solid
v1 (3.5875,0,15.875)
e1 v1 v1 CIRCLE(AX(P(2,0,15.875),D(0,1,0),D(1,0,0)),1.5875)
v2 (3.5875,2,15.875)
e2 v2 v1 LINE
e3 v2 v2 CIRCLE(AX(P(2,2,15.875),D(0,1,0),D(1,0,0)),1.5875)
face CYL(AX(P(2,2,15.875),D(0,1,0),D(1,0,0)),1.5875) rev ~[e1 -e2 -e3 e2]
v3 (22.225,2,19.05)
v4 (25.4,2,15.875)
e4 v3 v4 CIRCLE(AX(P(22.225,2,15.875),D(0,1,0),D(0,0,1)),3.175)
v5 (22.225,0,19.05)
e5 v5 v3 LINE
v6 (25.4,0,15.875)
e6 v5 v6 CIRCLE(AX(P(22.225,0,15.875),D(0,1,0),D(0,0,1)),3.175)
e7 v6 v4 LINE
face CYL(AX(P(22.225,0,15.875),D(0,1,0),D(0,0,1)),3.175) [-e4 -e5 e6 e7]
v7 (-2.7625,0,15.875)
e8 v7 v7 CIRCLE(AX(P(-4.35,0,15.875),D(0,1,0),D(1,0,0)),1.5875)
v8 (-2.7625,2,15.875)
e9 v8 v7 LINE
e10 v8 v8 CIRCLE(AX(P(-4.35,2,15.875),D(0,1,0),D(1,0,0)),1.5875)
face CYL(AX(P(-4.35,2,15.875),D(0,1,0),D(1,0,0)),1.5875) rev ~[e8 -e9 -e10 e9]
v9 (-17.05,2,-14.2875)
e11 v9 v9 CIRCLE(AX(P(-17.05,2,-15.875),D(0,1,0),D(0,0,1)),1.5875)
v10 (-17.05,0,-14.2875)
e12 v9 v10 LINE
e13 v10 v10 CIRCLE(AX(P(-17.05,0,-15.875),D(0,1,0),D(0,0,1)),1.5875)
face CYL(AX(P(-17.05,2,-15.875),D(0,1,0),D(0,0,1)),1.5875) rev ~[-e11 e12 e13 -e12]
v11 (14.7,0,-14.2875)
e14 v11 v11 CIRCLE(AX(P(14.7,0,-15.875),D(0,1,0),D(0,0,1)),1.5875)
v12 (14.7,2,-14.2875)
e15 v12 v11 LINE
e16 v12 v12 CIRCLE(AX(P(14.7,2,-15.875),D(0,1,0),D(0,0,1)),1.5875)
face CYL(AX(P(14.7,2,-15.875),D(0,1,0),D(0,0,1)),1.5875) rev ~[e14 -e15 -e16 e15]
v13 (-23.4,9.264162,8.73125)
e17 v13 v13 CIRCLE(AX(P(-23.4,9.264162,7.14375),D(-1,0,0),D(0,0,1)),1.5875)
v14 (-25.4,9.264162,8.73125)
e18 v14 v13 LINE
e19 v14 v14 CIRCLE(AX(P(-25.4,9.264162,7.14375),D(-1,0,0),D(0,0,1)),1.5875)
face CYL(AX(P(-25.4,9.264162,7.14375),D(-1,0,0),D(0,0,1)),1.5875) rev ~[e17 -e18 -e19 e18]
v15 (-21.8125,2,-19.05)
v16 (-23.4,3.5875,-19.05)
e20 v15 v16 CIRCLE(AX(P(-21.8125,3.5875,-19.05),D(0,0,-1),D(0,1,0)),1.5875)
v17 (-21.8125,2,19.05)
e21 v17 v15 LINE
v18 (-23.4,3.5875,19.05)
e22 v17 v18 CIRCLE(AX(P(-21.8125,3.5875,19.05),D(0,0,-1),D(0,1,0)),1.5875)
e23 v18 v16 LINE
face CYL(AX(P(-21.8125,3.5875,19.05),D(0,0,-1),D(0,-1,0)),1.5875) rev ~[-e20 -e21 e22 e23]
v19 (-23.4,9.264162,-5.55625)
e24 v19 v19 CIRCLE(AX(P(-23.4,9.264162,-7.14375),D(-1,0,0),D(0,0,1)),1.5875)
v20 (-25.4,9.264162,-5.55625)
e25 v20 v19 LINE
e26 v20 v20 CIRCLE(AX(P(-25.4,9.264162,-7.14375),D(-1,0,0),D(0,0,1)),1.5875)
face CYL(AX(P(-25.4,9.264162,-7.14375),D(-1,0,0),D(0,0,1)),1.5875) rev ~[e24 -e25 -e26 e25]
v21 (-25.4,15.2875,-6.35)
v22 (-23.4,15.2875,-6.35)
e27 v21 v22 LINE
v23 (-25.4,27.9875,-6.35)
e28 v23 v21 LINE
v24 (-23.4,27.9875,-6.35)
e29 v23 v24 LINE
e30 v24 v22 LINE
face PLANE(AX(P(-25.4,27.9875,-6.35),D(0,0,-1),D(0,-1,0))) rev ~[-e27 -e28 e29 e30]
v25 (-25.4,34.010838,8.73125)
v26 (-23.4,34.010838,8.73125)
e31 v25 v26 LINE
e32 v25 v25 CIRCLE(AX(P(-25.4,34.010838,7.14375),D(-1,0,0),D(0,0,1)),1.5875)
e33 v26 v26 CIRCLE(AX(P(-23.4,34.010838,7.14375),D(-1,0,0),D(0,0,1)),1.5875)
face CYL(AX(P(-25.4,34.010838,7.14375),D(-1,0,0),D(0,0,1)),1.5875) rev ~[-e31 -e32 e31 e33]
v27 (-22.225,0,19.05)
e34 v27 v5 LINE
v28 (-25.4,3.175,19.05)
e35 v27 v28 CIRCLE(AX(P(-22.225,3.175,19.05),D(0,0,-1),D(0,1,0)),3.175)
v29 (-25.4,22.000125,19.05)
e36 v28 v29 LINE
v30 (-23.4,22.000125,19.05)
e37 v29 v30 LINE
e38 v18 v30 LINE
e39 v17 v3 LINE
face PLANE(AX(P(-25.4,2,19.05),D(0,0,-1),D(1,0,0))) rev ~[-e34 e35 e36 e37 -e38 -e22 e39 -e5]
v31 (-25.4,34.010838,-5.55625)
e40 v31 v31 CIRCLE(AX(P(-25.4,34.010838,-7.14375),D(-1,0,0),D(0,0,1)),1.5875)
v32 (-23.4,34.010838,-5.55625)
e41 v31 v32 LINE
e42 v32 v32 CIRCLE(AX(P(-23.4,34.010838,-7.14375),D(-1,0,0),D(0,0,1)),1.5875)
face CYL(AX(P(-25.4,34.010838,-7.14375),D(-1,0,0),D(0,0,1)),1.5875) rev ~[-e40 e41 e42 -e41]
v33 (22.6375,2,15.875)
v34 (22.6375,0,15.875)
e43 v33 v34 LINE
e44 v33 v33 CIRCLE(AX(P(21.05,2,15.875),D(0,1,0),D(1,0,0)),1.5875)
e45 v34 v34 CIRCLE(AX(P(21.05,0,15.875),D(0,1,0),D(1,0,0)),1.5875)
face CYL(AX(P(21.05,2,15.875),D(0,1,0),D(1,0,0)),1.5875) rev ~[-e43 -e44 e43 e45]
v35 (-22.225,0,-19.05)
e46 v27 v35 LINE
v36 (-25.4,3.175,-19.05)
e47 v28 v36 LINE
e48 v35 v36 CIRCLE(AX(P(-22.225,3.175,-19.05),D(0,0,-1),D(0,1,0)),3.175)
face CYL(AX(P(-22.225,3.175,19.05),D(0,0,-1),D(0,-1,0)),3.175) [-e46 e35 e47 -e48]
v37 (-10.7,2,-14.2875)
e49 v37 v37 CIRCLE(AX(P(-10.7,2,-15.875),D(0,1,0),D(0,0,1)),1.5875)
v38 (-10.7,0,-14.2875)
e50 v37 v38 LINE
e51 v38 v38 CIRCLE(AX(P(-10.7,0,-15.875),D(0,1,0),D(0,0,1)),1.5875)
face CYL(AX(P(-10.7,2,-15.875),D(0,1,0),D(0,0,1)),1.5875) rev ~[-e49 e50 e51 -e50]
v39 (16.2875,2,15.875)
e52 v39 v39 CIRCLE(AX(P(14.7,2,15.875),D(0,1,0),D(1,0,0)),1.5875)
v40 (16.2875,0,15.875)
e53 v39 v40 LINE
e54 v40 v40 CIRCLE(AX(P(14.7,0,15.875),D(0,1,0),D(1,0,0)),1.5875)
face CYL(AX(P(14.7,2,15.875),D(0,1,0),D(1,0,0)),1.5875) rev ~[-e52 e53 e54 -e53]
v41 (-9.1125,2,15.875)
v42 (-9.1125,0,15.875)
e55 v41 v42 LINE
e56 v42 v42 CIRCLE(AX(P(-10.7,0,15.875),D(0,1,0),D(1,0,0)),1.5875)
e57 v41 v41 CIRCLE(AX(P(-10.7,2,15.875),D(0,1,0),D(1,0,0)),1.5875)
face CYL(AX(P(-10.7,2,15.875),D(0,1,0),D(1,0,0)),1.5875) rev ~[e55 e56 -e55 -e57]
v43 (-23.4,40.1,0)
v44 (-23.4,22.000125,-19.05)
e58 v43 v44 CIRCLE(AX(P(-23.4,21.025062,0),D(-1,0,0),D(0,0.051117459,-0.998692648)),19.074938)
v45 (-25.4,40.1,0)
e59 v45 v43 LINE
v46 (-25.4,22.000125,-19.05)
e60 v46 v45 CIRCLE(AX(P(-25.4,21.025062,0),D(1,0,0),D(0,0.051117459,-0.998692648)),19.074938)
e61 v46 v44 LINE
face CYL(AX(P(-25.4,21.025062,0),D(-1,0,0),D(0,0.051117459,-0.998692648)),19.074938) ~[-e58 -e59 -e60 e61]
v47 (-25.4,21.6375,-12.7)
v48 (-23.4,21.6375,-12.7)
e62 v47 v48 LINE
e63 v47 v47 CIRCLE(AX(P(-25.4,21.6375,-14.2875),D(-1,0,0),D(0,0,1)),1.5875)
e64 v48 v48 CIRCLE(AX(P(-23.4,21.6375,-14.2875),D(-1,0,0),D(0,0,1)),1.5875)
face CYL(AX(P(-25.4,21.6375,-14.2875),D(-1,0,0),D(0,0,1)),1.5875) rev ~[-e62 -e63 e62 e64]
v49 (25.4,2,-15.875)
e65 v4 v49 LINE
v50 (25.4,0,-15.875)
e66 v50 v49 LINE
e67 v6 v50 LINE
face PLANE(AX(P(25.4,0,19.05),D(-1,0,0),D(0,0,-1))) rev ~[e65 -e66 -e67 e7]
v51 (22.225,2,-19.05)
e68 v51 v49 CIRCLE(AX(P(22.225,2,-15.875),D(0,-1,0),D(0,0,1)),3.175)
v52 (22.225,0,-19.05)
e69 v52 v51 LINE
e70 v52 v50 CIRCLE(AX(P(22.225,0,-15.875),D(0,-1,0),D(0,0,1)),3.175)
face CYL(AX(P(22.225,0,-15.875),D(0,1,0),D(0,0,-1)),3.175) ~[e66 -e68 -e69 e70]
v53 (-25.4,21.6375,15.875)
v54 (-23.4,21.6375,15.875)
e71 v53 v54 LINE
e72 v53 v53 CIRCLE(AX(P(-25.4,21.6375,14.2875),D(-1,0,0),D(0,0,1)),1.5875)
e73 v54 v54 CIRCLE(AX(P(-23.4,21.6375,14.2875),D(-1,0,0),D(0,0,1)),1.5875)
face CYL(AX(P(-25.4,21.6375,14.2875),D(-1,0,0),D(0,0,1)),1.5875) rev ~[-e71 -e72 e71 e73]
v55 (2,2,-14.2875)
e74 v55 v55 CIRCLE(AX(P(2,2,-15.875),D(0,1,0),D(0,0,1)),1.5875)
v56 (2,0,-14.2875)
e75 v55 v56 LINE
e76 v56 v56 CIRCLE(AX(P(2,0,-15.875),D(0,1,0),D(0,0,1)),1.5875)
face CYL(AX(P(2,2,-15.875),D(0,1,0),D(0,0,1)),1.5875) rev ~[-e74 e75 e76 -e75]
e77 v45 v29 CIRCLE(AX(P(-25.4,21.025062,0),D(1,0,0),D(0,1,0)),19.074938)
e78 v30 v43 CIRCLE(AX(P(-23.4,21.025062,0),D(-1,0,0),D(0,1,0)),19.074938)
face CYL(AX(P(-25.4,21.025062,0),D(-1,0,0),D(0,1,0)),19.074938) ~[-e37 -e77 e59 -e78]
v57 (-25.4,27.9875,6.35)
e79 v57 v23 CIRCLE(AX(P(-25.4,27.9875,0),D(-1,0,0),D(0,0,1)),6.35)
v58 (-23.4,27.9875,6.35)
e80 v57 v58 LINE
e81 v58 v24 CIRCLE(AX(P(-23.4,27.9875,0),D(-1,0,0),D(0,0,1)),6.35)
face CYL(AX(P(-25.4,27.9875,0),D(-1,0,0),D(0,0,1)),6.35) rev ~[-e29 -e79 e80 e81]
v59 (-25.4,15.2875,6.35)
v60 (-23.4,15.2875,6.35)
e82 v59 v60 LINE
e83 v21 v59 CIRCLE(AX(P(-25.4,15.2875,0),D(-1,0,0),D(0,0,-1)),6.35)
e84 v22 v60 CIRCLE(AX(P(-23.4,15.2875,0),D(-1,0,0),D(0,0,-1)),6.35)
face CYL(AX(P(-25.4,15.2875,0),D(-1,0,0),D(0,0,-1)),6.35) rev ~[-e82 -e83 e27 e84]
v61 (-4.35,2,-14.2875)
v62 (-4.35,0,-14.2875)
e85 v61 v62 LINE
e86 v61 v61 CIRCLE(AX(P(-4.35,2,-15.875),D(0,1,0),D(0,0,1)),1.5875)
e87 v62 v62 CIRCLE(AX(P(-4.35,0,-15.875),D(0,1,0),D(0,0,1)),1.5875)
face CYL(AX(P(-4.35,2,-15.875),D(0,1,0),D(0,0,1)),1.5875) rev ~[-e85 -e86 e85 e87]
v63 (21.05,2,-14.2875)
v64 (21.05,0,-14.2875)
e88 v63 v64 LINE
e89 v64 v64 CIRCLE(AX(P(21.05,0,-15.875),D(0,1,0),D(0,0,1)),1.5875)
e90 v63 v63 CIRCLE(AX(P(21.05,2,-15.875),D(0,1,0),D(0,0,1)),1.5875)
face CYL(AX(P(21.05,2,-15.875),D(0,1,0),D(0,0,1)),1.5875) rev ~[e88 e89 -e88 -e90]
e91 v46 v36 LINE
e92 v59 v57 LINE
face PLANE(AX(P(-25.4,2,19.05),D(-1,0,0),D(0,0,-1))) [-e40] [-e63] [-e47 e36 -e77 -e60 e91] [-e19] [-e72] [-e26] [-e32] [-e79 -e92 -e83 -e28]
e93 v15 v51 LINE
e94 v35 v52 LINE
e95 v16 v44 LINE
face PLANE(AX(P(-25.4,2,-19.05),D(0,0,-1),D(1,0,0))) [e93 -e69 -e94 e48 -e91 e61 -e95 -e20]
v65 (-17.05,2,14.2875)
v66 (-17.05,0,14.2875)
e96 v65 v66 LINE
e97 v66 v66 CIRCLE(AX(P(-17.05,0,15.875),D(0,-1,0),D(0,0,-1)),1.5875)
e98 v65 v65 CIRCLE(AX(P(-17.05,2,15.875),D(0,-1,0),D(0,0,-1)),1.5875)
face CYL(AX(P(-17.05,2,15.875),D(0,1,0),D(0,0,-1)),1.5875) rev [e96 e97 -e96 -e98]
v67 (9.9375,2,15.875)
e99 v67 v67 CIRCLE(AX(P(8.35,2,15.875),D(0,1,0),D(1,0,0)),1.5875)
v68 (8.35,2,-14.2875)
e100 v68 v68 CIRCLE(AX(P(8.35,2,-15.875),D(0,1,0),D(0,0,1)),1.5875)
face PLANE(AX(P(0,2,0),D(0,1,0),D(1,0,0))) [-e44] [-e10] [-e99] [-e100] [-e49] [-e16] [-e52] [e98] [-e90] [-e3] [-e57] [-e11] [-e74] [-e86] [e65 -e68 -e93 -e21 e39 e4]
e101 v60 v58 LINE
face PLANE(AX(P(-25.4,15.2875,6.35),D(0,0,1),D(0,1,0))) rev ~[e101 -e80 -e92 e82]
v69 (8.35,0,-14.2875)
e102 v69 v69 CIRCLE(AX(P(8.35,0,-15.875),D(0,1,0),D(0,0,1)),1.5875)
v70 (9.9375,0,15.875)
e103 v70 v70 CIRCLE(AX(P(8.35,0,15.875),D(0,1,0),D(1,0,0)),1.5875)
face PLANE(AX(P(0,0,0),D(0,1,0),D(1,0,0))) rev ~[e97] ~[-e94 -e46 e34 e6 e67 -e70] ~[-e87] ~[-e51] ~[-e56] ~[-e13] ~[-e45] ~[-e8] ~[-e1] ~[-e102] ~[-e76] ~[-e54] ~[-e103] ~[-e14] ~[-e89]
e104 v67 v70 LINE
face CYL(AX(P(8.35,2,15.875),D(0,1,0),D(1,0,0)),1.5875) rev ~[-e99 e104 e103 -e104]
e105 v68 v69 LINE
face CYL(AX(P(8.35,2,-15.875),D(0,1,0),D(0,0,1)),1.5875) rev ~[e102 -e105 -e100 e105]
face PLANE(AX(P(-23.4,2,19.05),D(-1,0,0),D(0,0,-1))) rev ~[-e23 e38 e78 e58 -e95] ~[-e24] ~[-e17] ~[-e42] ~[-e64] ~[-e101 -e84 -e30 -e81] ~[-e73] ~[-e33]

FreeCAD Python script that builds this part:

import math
import FreeCAD as App
import Part
import Sketcher
from FreeCAD import Vector
Q = App.Units.Quantity


def edges_at(feature, points):
    """Names of the edges that pass closest to the given points."""
    edges = feature.Shape.Edges
    near = lambda p: min(range(len(edges)), key=lambda i: edges[i].distToShape(Part.Vertex(*p))[0])
    return sorted({f"Edge{near(p) + 1}" for p in points})


def add_polygon(sketch, points):
    """Adds a closed chain of lines whose ends are joined by coincident constraints."""
    first, n = sketch.GeometryCount, len(points)
    for a, b in zip(points, points[1:] + points[:1]):
        sketch.addGeometry(Part.LineSegment(App.Vector(*a, 0), App.Vector(*b, 0)), False)
    for i in range(n):
        sketch.addConstraint(Sketcher.Constraint("Coincident", first + i, 2, first + (i + 1) % n, 1))

doc = App.newDocument("Part")
body = doc.addObject("PartDesign::Body", "Body")

# Sketch on XZ plane
sketch1 = body.newObject("Sketcher::SketchObject", "Sketch")
sketch1.AttachmentSupport = (doc.getObject("XZ_Plane"), [""])
sketch1.MapMode = "FlatFace"
add_polygon(sketch1, [(-25.4, -19.05), (-25.4, 19.05), (25.4, 19.05), (25.4, -19.05)])  # lines 0-3
sketch1.addConstraint([
    Sketcher.Constraint("Vertical", 0),
    Sketcher.Constraint("Horizontal", 1),
    Sketcher.Constraint("Vertical", 2),
    Sketcher.Constraint("Horizontal", 3),
    Sketcher.Constraint("Symmetric", 0, 2, 2, 2, -1, 1),
    Sketcher.Constraint("DistanceX", 1, 1, 1, 2, Q("2 in")),
    Sketcher.Constraint("DistanceY", 0, 1, 0, 2, Q("1.5 in")),
])
pad1 = body.newObject("PartDesign::Pad", "Pad")
pad1.Profile = sketch1
pad1.Length = 2
pad1.Reversed = True

# Sketch on XZ plane
sketch2 = body.newObject("Sketcher::SketchObject", "Sketch001")
sketch2.AttachmentSupport = (doc.getObject("XZ_Plane"), [""])
sketch2.MapMode = "FlatFace"
sketch2.AttachmentOffset = App.Placement(Vector(0, 0, -2), App.Rotation())
add_polygon(sketch2, [(-25.4, -19.05), (-25.4, 19.05), (-23.4, 19.05), (-23.4, -19.05)])  # lines 0-3
sketch2.addConstraint([
    Sketcher.Constraint("Vertical", 0),
    Sketcher.Constraint("Horizontal", 1),
    Sketcher.Constraint("Vertical", 2),
    Sketcher.Constraint("Horizontal", 3),
    Sketcher.Constraint("DistanceY", 0, 1, 0, 2, Q("1.5 in")),
    Sketcher.Constraint("DistanceX", 0, 2, -1, 1, Q("1 in")),
    Sketcher.Constraint("DistanceY", -1, 1, 0, 2, Q("0.75 in")),
    Sketcher.Constraint("DistanceX", 1, 1, 1, 2, Q("2 mm")),
])
pad2 = body.newObject("PartDesign::Pad", "Pad001")
pad2.Profile = sketch2
pad2.Length = Q("1.5 in")
pad2.Reversed = True

# Sketch on YZ plane
sketch3 = body.newObject("Sketcher::SketchObject", "Sketch002")
sketch3.AttachmentSupport = (doc.getObject("YZ_Plane"), [""])
sketch3.MapMode = "FlatFace"
sketch3.AttachmentOffset = App.Placement(Vector(0, 0, -1 * 25.4), App.Rotation())
sketch3.addGeometry([
    Part.LineSegment(Vector(40.1, 19.05, 0), Vector(40.1, 0, 0)),  # 0
    Part.ArcOfCircle(Part.Circle(Vector(21.025062, 0, 0), Vector(0, 0, 1), 19.074938), math.radians(0), math.radians(87.069908)),  # 1
    Part.LineSegment(Vector(22.000125, 19.05, 0), Vector(40.1, 19.05, 0)),  # 2
    Part.LineSegment(Vector(40.1, -19.05, 0), Vector(22.000125, -19.05, 0)),  # 3
    Part.ArcOfCircle(Part.Circle(Vector(21.025062, 0, 0), Vector(0, 0, 1), 19.074938), math.radians(-87.069908), math.radians(0)),  # 4
    Part.LineSegment(Vector(40.1, 0, 0), Vector(40.1, -19.05, 0)),  # 5
], False)
sketch3.addConstraint([
    Sketcher.Constraint("Tangent", 0, 2, 1, 1),
    Sketcher.Constraint("Coincident", 1, 2, 2, 1),
    Sketcher.Constraint("Coincident", 2, 2, 0, 1),
    Sketcher.Constraint("Coincident", 3, 2, 4, 1),
    Sketcher.Constraint("Tangent", 4, 2, 5, 1),
    Sketcher.Constraint("Coincident", 5, 2, 3, 1),
    Sketcher.Constraint("Vertical", 0),
    Sketcher.Constraint("Horizontal", 2),
    Sketcher.Constraint("Horizontal", 3),
    Sketcher.Constraint("Vertical", 5),
    Sketcher.Constraint("Coincident", 4, 3, 1, 3),
    Sketcher.Constraint("Equal", 1, 4),
    Sketcher.Constraint("Symmetric", 1, 2, 3, 2, -1),
    Sketcher.Constraint("DistanceY", 0, 2, 0, 1, Q("0.75 in")),
    Sketcher.Constraint("Radius", 1, Q("19.074938 mm")),
    Sketcher.Constraint("DistanceX", -1, 1, 0, 2, Q("40.1 mm")),
])
pocket1 = body.newObject("PartDesign::Pocket", "Pocket")
pocket1.Profile = sketch3
pocket1.Length = Q("1.5 in")
pocket1.Reversed = True

# Sketch on XZ plane
sketch4 = body.newObject("Sketcher::SketchObject", "Sketch003")
sketch4.AttachmentSupport = (doc.getObject("XZ_Plane"), [""])
sketch4.MapMode = "FlatFace"
sketch4.AttachmentOffset = App.Placement(Vector(0, 0, -2), App.Rotation())
sketch4.addGeometry(Part.Circle(Vector(-17.05, -15.875, 0), Vector(0, 0, 1), 1.5875), False)
sketch4.addConstraint([
    Sketcher.Constraint("Diameter", 0, Q("0.125 in")),
    Sketcher.Constraint("DistanceY", 0, 3, -1, 1, Q("0.625 in")),
    Sketcher.Constraint("DistanceX", 0, 3, -1, 1, Q("17.05 mm")),
])
pocket2 = body.newObject("PartDesign::Pocket", "Pocket001")
pocket2.Profile = sketch4
pocket2.Length = 2
pocket2.Reversed = True
doc.recompute()

linearpattern = body.newObject("PartDesign::LinearPattern", "LinearPattern")
linearpattern.Originals = [pocket2]
linearpattern.Direction = (doc.getObject("X_Axis"), [""])
linearpattern.Mode = "offset"
linearpattern.Offset = Q("0.25 in")
linearpattern.Occurrences = 7
body.Tip = linearpattern
doc.recompute()

mirrored = body.newObject("PartDesign::Mirrored", "Mirrored")
mirrored.Originals = [pocket2]
mirrored.MirrorPlane = (doc.getObject("XY_Plane"), [""])
body.Tip = mirrored

# Sketch on XZ plane
sketch5 = body.newObject("Sketcher::SketchObject", "Sketch004")
sketch5.AttachmentSupport = (doc.getObject("XZ_Plane"), [""])
sketch5.MapMode = "FlatFace"
sketch5.AttachmentOffset = App.Placement(Vector(0, 0, -2), App.Rotation())
sketch5.addGeometry(Part.Circle(Vector(-10.7, 15.875, 0), Vector(0, 0, 1), 1.5875), False)
sketch5.addConstraint([
    Sketcher.Constraint("Diameter", 0, Q("0.125 in")),
    Sketcher.Constraint("DistanceY", -1, 1, 0, 3, Q("0.625 in")),
    Sketcher.Constraint("DistanceX", 0, 3, -1, 1, Q("10.7 mm")),
])
pocket3 = body.newObject("PartDesign::Pocket", "Pocket002")
pocket3.Profile = sketch5
pocket3.Length = 2
pocket3.Reversed = True

# Sketch on XZ plane
sketch6 = body.newObject("Sketcher::SketchObject", "Sketch005")
sketch6.AttachmentSupport = (doc.getObject("XZ_Plane"), [""])
sketch6.MapMode = "FlatFace"
sketch6.AttachmentOffset = App.Placement(Vector(0, 0, -2), App.Rotation())
sketch6.addGeometry(Part.Circle(Vector(-4.35, 15.875, 0), Vector(0, 0, 1), 1.5875), False)
sketch6.addConstraint([
    Sketcher.Constraint("Diameter", 0, Q("0.125 in")),
    Sketcher.Constraint("DistanceY", -1, 1, 0, 3, Q("0.625 in")),
    Sketcher.Constraint("DistanceX", 0, 3, -1, 1, Q("4.35 mm")),
])
pocket4 = body.newObject("PartDesign::Pocket", "Pocket003")
pocket4.Profile = sketch6
pocket4.Length = 2
pocket4.Reversed = True

# Sketch on XZ plane
sketch7 = body.newObject("Sketcher::SketchObject", "Sketch006")
sketch7.AttachmentSupport = (doc.getObject("XZ_Plane"), [""])
sketch7.MapMode = "FlatFace"
sketch7.AttachmentOffset = App.Placement(Vector(0, 0, -2), App.Rotation())
sketch7.addGeometry(Part.Circle(Vector(2, 15.875, 0), Vector(0, 0, 1), 1.5875), False)
sketch7.addConstraint([
    Sketcher.Constraint("Diameter", 0, Q("0.125 in")),
    Sketcher.Constraint("DistanceY", -1, 1, 0, 3, Q("0.625 in")),
    Sketcher.Constraint("DistanceX", -1, 1, 0, 3, Q("2 mm")),
])
pocket5 = body.newObject("PartDesign::Pocket", "Pocket004")
pocket5.Profile = sketch7
pocket5.Length = 2
pocket5.Reversed = True

# Sketch on XZ plane
sketch8 = body.newObject("Sketcher::SketchObject", "Sketch007")
sketch8.AttachmentSupport = (doc.getObject("XZ_Plane"), [""])
sketch8.MapMode = "FlatFace"
sketch8.AttachmentOffset = App.Placement(Vector(0, 0, -2), App.Rotation())
sketch8.addGeometry(Part.Circle(Vector(8.35, 15.875, 0), Vector(0, 0, 1), 1.5875), False)
sketch8.addConstraint([
    Sketcher.Constraint("Diameter", 0, Q("0.125 in")),
    Sketcher.Constraint("DistanceY", -1, 1, 0, 3, Q("0.625 in")),
    Sketcher.Constraint("DistanceX", -1, 1, 0, 3, Q("8.35 mm")),
])
pocket6 = body.newObject("PartDesign::Pocket", "Pocket005")
pocket6.Profile = sketch8
pocket6.Length = 2
pocket6.Reversed = True

# Sketch on XZ plane
sketch9 = body.newObject("Sketcher::SketchObject", "Sketch008")
sketch9.AttachmentSupport = (doc.getObject("XZ_Plane"), [""])
sketch9.MapMode = "FlatFace"
sketch9.AttachmentOffset = App.Placement(Vector(0, 0, -2), App.Rotation())
sketch9.addGeometry(Part.Circle(Vector(14.7, 15.875, 0), Vector(0, 0, 1), 1.5875), False)
sketch9.addConstraint([
    Sketcher.Constraint("Diameter", 0, Q("0.125 in")),
    Sketcher.Constraint("DistanceY", -1, 1, 0, 3, Q("0.625 in")),
    Sketcher.Constraint("DistanceX", -1, 1, 0, 3, Q("14.7 mm")),
])
pocket7 = body.newObject("PartDesign::Pocket", "Pocket006")
pocket7.Profile = sketch9
pocket7.Length = 2
pocket7.Reversed = True

# Sketch on XZ plane
sketch10 = body.newObject("Sketcher::SketchObject", "Sketch009")
sketch10.AttachmentSupport = (doc.getObject("XZ_Plane"), [""])
sketch10.MapMode = "FlatFace"
sketch10.AttachmentOffset = App.Placement(Vector(0, 0, -2), App.Rotation())
sketch10.addGeometry(Part.Circle(Vector(21.05, 15.875, 0), Vector(0, 0, 1), 1.5875), False)
sketch10.addConstraint([
    Sketcher.Constraint("Diameter", 0, Q("0.125 in")),
    Sketcher.Constraint("DistanceY", -1, 1, 0, 3, Q("0.625 in")),
    Sketcher.Constraint("DistanceX", -1, 1, 0, 3, Q("21.05 mm")),
])
pocket8 = body.newObject("PartDesign::Pocket", "Pocket007")
pocket8.Profile = sketch10
pocket8.Length = 2
pocket8.Reversed = True
doc.recompute()

fillet = body.newObject("PartDesign::Fillet", "Fillet")
fillet.Base = (pocket8, edges_at(pocket8, [(25.4, 1, 19.05), (25.4, 1, -19.05)]))
fillet.Radius = Q("0.125 in")
doc.recompute()

fillet2 = body.newObject("PartDesign::Fillet", "Fillet001")
fillet2.Base = (fillet, edges_at(fillet, [(-23.4, 2, 0)]))
fillet2.Radius = Q("0.0625 in")
doc.recompute()

fillet3 = body.newObject("PartDesign::Fillet", "Fillet002")
fillet3.Base = (fillet2, edges_at(fillet2, [(-25.4, 0, 0)]))
fillet3.Radius = Q("0.125 in")

# Sketch on YZ plane
sketch11 = body.newObject("Sketcher::SketchObject", "Sketch010")
sketch11.AttachmentSupport = (doc.getObject("YZ_Plane"), [""])
sketch11.MapMode = "FlatFace"
sketch11.AttachmentOffset = App.Placement(Vector(0, 0, -1 * 25.4), App.Rotation())
sketch11.addGeometry([
    Part.Circle(Vector(21.6375, 14.2875, 0), Vector(0, 0, 1), 1.5875),  # 0
    Part.Circle(Vector(9.264162, 7.14375, 0), Vector(0, 0, 1), 1.5875),  # 1
    Part.Circle(Vector(9.264162, -7.14375, 0), Vector(0, 0, 1), 1.5875),  # 2
    Part.Circle(Vector(21.6375, -14.2875, 0), Vector(0, 0, 1), 1.5875),  # 3
    Part.Circle(Vector(34.010838, -7.14375, 0), Vector(0, 0, 1), 1.5875),  # 4
    Part.Circle(Vector(34.010838, 7.14375, 0), Vector(0, 0, 1), 1.5875),  # 5
    Part.LineSegment(Vector(27.9875, -6.35, 0), Vector(15.2875, -6.35, 0)),  # 6
    Part.ArcOfCircle(Part.Circle(Vector(15.2875, 0, 0), Vector(0, 0, 1), 6.35), math.radians(90), math.radians(270)),  # 7
    Part.LineSegment(Vector(15.2875, 6.35, 0), Vector(27.9875, 6.35, 0)),  # 8
    Part.ArcOfCircle(Part.Circle(Vector(27.9875, 0, 0), Vector(0, 0, 1), 6.35), math.radians(-90), math.radians(90)),  # 9
], False)
sketch11.addConstraint([
    Sketcher.Constraint("Tangent", 6, 2, 7, 2),
    Sketcher.Constraint("Tangent", 7, 1, 8, 1),
    Sketcher.Constraint("Tangent", 8, 2, 9, 2),
    Sketcher.Constraint("Tangent", 9, 1, 6, 1),
    Sketcher.Constraint("Horizontal", 6),
    Sketcher.Constraint("Horizontal", 8),
    Sketcher.Constraint("Equal", 0, 1),
    Sketcher.Constraint("Equal", 1, 2),
    Sketcher.Constraint("Equal", 2, 3),
    Sketcher.Constraint("Equal", 3, 4),
    Sketcher.Constraint("Equal", 4, 5),
    Sketcher.Constraint("Symmetric", 1, 3, 2, 3, -1),
    Sketcher.Constraint("Symmetric", 0, 3, 3, 3, -1),
    Sketcher.Constraint("Symmetric", 4, 3, 5, 3, -1),
    Sketcher.Constraint("PointOnObject", 7, 3, -1),
    Sketcher.Constraint("Horizontal", 2, 3, 4, 3),
    Sketcher.Constraint("Radius", 7, Q("0.25 in")),
    Sketcher.Constraint("Diameter", 0, Q("0.125 in")),
    Sketcher.Constraint("DistanceX", 6, 2, 6, 1, Q("0.5 in")),
    Sketcher.Constraint("DistanceX", 7, 3, 0, 3, Q("0.25 in")),
    Sketcher.Constraint("DistanceY", -1, 1, 0, 3, Q("0.5625 in")),
    Sketcher.Constraint("DistanceY", -1, 1, 1, 3, Q("0.28125 in")),
    Sketcher.Constraint("DistanceX", -1, 1, 0, 3, Q("21.6375 mm")),
    Sketcher.Constraint("DistanceX", -1, 1, 1, 3, Q("9.264162 mm")),
    Sketcher.Constraint("DistanceX", -1, 1, 4, 3, Q("34.010838 mm")),
])
pocket9 = body.newObject("PartDesign::Pocket", "Pocket008")
pocket9.Profile = sketch11
pocket9.Type = "ThroughAll"
pocket9.Reversed = True

doc.recompute()
